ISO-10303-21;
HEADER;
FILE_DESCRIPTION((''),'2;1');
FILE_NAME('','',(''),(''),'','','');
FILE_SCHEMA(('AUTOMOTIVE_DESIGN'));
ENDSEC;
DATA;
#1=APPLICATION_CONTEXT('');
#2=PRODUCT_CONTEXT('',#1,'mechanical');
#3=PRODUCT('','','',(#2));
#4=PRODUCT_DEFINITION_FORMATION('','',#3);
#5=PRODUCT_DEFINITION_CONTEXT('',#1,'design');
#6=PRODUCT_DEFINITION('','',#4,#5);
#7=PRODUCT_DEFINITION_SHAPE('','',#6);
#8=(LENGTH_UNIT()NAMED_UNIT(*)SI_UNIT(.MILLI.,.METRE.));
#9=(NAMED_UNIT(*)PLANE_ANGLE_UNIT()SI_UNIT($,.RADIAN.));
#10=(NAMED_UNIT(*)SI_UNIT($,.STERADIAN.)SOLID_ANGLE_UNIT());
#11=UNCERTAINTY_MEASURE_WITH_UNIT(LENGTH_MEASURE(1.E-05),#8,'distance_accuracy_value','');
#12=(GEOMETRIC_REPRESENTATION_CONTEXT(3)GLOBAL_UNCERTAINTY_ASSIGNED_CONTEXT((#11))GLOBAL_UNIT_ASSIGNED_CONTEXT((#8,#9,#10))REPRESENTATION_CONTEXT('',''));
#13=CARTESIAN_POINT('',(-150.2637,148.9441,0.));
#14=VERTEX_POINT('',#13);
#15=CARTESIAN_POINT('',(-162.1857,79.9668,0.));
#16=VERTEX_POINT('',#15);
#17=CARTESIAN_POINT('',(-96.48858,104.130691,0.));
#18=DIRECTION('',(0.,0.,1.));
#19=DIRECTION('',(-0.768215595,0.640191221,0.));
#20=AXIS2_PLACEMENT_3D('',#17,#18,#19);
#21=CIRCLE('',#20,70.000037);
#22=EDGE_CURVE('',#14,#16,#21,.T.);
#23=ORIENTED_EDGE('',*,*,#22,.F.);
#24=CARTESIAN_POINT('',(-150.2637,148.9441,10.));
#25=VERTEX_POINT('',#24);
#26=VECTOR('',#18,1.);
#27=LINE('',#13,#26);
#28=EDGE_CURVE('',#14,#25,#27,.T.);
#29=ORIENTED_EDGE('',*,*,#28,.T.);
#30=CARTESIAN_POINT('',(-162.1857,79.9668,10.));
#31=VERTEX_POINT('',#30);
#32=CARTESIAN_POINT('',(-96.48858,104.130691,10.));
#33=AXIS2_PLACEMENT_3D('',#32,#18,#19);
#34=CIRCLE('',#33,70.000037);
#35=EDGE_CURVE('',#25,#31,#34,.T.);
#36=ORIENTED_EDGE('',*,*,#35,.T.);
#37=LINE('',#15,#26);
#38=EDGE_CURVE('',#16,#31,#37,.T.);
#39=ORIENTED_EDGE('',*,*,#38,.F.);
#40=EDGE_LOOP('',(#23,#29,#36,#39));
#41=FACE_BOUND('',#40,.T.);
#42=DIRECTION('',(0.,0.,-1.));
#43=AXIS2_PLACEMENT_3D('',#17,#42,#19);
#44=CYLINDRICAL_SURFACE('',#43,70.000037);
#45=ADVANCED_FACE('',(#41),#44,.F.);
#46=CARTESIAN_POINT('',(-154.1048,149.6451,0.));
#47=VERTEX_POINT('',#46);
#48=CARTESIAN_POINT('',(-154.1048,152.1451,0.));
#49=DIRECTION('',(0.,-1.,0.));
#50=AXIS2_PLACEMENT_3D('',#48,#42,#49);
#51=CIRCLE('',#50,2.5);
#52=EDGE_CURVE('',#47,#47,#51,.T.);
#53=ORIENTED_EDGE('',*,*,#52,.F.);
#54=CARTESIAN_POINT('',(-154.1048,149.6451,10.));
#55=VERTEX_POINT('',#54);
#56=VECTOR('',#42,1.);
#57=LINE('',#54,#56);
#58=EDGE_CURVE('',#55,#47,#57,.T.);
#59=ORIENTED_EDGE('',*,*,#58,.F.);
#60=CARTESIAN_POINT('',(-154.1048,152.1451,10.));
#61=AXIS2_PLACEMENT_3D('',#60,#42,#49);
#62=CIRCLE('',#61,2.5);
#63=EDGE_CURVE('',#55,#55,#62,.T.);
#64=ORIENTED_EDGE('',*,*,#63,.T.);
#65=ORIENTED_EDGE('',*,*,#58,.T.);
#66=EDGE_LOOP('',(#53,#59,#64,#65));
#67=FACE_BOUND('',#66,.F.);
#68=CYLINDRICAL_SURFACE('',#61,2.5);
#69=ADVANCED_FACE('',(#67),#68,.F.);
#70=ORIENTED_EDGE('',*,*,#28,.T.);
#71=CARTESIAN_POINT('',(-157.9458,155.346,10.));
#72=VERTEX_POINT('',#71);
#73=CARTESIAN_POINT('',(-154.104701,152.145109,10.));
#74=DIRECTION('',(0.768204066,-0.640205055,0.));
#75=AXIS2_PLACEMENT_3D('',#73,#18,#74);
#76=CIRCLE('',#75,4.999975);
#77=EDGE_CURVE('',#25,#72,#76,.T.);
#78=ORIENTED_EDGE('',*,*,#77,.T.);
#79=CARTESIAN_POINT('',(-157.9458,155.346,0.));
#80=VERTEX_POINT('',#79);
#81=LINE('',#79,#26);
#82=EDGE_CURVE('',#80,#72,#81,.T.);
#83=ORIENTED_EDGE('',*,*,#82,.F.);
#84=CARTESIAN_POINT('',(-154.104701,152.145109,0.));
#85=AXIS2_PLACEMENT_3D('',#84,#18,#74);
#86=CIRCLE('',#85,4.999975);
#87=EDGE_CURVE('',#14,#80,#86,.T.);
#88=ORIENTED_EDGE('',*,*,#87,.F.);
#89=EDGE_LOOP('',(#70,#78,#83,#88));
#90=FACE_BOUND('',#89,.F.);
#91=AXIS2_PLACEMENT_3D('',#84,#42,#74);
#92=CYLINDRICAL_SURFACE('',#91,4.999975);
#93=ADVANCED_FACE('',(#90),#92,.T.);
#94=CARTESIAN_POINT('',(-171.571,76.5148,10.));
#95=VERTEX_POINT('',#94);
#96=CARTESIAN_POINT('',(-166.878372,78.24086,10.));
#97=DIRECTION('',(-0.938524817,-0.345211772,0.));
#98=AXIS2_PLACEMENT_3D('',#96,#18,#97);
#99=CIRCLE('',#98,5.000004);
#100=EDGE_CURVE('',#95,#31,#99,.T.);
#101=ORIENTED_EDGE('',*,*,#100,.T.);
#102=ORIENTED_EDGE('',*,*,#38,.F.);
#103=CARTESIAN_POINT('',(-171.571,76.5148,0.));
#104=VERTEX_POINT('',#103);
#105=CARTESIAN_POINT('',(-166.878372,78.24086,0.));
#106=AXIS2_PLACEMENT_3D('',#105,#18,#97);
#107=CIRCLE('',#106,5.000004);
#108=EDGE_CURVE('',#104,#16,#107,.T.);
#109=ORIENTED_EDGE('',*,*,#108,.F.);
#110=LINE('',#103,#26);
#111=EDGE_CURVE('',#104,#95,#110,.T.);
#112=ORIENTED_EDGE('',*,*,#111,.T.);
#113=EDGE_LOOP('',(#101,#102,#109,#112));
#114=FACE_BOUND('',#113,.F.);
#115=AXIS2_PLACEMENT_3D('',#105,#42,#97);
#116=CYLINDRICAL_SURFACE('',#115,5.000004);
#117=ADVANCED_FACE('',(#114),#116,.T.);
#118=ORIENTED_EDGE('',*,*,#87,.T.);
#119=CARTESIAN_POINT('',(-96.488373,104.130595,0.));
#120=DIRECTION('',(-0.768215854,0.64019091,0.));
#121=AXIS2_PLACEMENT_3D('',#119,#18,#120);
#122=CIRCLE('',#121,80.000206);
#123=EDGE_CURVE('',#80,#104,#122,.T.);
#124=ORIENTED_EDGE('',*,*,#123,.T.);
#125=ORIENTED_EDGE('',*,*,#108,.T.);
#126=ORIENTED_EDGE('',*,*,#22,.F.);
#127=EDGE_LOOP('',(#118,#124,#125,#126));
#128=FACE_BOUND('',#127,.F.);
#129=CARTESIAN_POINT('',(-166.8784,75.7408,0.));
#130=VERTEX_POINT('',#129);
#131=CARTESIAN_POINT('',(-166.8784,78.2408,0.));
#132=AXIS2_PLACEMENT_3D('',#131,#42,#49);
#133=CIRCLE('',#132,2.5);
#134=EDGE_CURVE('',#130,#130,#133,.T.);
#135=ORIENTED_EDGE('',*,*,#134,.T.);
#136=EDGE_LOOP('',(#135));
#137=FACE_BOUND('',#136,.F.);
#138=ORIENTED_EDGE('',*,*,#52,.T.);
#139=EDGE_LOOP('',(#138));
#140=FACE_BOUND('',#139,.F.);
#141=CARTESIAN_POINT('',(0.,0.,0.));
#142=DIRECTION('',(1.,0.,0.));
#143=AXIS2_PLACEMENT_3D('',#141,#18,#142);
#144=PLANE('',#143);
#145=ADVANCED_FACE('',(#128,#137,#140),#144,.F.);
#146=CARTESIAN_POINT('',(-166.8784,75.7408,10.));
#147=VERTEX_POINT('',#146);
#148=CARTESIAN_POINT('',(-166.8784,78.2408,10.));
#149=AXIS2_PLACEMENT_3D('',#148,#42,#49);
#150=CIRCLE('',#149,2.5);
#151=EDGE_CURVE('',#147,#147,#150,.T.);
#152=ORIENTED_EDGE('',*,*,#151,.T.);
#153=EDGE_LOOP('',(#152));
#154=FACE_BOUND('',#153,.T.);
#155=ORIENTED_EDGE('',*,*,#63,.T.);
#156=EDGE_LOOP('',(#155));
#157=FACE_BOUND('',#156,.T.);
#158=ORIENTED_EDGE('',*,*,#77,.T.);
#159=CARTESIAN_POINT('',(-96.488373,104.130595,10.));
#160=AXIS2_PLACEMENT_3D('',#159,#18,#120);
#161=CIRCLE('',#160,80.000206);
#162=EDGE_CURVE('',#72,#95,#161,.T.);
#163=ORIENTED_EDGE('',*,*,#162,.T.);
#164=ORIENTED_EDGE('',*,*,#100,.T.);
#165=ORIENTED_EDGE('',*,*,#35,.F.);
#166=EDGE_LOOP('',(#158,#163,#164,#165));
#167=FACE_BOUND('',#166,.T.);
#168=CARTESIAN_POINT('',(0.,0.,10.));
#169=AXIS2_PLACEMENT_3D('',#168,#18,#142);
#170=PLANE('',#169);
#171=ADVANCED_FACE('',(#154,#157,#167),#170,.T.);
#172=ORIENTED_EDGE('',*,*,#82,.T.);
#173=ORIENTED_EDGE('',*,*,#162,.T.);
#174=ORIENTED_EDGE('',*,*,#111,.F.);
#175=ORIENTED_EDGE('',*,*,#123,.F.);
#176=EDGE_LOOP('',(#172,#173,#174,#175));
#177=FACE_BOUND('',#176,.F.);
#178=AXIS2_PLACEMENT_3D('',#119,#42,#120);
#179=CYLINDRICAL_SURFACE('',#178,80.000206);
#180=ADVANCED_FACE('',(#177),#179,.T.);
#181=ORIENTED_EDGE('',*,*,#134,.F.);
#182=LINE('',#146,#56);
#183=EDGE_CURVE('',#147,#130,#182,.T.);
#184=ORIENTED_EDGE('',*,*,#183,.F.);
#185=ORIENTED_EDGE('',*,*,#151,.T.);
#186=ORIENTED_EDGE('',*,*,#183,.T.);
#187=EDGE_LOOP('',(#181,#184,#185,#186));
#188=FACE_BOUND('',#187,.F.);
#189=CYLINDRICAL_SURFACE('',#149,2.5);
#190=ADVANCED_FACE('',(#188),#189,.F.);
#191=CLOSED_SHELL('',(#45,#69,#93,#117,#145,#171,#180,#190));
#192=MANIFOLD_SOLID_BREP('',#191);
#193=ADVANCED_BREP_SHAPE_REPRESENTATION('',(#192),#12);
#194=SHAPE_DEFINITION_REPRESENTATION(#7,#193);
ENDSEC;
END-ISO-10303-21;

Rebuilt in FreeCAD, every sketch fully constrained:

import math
import FreeCAD as App
import Part
import Sketcher
Q = App.Units.Quantity

doc = App.newDocument("Part")
body = doc.addObject("PartDesign::Body", "Body")

# Sketch on XY plane
sketch1 = doc.addObject("Sketcher::SketchObject", "Sketch")
body.addObject(sketch1)
sketch1.AttachmentSupport = (doc.XY_Plane, [""])
sketch1.MapMode = "FlatFace"
sketch1.addGeometry([
    Part.ArcOfCircle(Part.Circle(App.Vector(-154.1, 152.1, 0), App.Vector(0, 0, 1), 5), math.radians(-40), math.radians(140)),
    Part.ArcOfCircle(Part.Circle(App.Vector(-96.5, 104.1, 0), App.Vector(0, 0, 1), 80), math.radians(140), math.radians(200)),
    Part.ArcOfCircle(Part.Circle(App.Vector(-166.9, 78.2, 0), App.Vector(0, 0, 1), 5), math.radians(-160), math.radians(20)),
    Part.ArcOfCircle(Part.Circle(App.Vector(-96.5, 104.1, 0), App.Vector(0, 0, 1), 70), math.radians(140), math.radians(200)),
], False)
sketch1.addConstraint([
    Sketcher.Constraint("Tangent", 0, 2, 1, 1),
    Sketcher.Constraint("Tangent", 1, 2, 2, 1),
    Sketcher.Constraint("Tangent", 2, 2, 3, 2),
    Sketcher.Constraint("Tangent", 3, 1, 0, 1),
    Sketcher.Constraint("Coincident", 3, 3, 1, 3),
    Sketcher.Constraint("Radius", 0, Q("5 mm")),
    Sketcher.Constraint("Radius", 1, Q("80 mm")),
    Sketcher.Constraint("DistanceY", 2, 3, 1, 3, Q("25.89 mm")),
    Sketcher.Constraint("DistanceY", -1, 1, 0, 3, Q("152.145 mm")),
    Sketcher.Constraint("DistanceX", 0, 2, -1, 1, Q("157.946 mm")),
    Sketcher.Constraint("DistanceY", -1, 1, 0, 2, Q("155.346 mm")),
])
pad1 = doc.addObject("PartDesign::Pad", "Pad")
body.addObject(pad1)
pad1.Profile = sketch1
pad1.Length = 10

# Sketch on XY plane
sketch2 = doc.addObject("Sketcher::SketchObject", "Sketch001")
body.addObject(sketch2)
sketch2.AttachmentSupport = (doc.XY_Plane, [""])
sketch2.MapMode = "FlatFace"
sketch2.AttachmentOffset = App.Placement(App.Vector(0, 0, 10), App.Rotation())
sketch2.addGeometry([
    Part.Circle(App.Vector(-154.1, 152.1, 0), App.Vector(0, 0, 1), 2.5),
    Part.Circle(App.Vector(-166.9, 78.2, 0), App.Vector(0, 0, 1), 2.5),
], False)
sketch2.addConstraint([
    Sketcher.Constraint("Equal", 0, 1),
    Sketcher.Constraint("Diameter", 0, Q("5 mm")),
    Sketcher.Constraint("DistanceY", -1, 1, 0, 3, Q("152.145 mm")),
    Sketcher.Constraint("DistanceX", 0, 3, -1, 1, Q("154.1048 mm")),
    Sketcher.Constraint("DistanceX", 1, 3, -1, 1, Q("166.8784 mm")),
    Sketcher.Constraint("DistanceY", -1, 1, 1, 3, Q("78.2408 mm")),
])
doc.recompute()
hole = doc.addObject("PartDesign::Hole", "Hole")
body.addObject(hole)
hole.Profile = sketch2
hole.ThreadType = "None"
hole.Diameter = 5
hole.DepthType = "ThroughAll"

doc.recompute()
